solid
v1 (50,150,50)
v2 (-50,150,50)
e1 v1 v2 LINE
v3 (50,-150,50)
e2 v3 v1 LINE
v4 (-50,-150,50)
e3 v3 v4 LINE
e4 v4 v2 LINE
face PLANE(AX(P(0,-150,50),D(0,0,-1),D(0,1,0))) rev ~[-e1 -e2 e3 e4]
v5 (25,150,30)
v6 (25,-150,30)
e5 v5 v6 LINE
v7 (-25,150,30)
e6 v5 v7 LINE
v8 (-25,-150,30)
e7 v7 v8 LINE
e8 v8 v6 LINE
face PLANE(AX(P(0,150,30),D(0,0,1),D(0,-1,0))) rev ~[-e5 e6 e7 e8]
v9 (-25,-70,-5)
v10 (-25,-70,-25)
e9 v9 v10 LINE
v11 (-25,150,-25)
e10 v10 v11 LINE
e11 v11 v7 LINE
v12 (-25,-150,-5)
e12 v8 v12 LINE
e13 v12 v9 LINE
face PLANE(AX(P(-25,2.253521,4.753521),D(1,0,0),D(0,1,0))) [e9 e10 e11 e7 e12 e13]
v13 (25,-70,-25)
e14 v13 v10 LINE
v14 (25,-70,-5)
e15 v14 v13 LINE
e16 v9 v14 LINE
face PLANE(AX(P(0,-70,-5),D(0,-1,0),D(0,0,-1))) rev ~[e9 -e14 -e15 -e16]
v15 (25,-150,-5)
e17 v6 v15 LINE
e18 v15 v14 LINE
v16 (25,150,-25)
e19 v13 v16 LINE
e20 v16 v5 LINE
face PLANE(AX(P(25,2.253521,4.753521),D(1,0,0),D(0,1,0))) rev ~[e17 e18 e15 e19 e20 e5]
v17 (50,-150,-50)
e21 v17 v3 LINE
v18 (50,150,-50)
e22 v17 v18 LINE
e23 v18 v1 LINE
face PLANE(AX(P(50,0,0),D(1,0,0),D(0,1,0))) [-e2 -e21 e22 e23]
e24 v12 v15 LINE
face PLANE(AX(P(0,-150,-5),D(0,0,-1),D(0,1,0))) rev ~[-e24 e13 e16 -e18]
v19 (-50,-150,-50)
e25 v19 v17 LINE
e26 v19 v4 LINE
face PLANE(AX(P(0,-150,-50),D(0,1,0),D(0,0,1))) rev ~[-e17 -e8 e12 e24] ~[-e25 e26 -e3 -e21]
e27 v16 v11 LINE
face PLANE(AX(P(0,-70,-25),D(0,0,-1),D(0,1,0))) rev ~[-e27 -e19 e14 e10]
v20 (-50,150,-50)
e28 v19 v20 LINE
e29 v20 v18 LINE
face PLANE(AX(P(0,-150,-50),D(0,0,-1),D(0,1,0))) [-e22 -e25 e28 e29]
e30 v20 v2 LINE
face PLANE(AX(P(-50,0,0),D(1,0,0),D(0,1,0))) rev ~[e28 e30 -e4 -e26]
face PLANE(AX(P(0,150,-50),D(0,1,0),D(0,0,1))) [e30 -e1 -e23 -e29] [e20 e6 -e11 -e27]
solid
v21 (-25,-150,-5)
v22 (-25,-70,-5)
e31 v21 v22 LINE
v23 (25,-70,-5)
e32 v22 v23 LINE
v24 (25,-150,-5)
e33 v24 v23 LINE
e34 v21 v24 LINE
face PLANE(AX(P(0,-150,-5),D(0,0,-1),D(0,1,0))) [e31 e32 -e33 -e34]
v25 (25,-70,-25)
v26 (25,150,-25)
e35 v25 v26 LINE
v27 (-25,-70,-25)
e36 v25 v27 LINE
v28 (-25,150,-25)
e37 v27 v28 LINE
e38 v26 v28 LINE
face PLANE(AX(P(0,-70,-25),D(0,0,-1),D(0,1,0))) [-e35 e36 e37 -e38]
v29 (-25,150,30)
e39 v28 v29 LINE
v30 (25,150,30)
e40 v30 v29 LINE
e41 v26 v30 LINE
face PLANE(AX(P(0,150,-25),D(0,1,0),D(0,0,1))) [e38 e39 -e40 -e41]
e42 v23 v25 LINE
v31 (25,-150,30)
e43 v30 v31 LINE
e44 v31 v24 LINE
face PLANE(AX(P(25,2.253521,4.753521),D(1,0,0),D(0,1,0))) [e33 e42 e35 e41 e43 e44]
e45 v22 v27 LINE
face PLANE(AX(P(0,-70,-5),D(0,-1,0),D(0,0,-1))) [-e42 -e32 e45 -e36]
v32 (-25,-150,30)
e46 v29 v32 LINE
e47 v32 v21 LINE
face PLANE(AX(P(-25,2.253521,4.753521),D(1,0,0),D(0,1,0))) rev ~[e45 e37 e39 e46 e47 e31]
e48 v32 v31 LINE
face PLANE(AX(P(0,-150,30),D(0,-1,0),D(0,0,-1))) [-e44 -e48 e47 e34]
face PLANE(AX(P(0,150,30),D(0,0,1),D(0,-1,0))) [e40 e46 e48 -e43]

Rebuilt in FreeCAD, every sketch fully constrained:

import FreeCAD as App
import Part
import Sketcher

V = App.Vector

doc = App.newDocument("Part")
params = doc.addObject("Spreadsheet::Sheet", "Params")
for row, (alias, value) in enumerate([
    ("sketch1_width", "300 mm"),
    ("sketch1_height", "100 mm"),
    ("pad1_length", "100 mm"),
    ("sketch2_width", "300 mm"),
    ("sketch2_width2", "80 mm"),
    ("sketch2_height", "35 mm"),
    ("sketch2_height2", "20 mm"),
    ("pad2_length", "50 mm"),
], start=1):
    params.set(f"A{row}", alias)
    params.set(f"B{row}", "=" + value)
    params.setAlias(f"B{row}", alias)

body = doc.addObject("PartDesign::Body", "Body")

sketch1 = body.newObject("Sketcher::SketchObject", "Sketch")
sketch1.AttachmentSupport = (doc.getObject("YZ_Plane"), [""])
sketch1.MapMode = "FlatFace"
sketch1.addGeometry([
    Part.LineSegment(V(-150, 50, 0), V(-150, -50, 0)),
    Part.LineSegment(V(-150, -50, 0), V(150, -50, 0)),
    Part.LineSegment(V(150, -50, 0), V(150, 50, 0)),
    Part.LineSegment(V(150, 50, 0), V(-150, 50, 0)),
], False)
sketch1.addConstraint([
    Sketcher.Constraint("Coincident", 0, 2, 1, 1),
    Sketcher.Constraint("Coincident", 1, 2, 2, 1),
    Sketcher.Constraint("Coincident", 2, 2, 3, 1),
    Sketcher.Constraint("Coincident", 3, 2, 0, 1),
    Sketcher.Constraint("Vertical", 0),
    Sketcher.Constraint("Horizontal", 1),
    Sketcher.Constraint("Vertical", 2),
    Sketcher.Constraint("Horizontal", 3),
    Sketcher.Constraint("Symmetric", 0, 2, 2, 2, -1, 1),
    Sketcher.Constraint("DistanceX", 1, 1, 1, 2, 300.0),
    Sketcher.Constraint("DistanceY", 0, 2, 0, 1, 100.0),
])
sketch1.setExpression("Constraints[9]", "Params.sketch1_width")
sketch1.setExpression("Constraints[10]", "Params.sketch1_height")
pad1 = body.newObject("PartDesign::Pad", "Pad")
pad1.Profile = sketch1
pad1.setExpression("Length", "Params.pad1_length")
pad1.Midplane = True
body2 = doc.addObject("PartDesign::Body", "Body001")

sketch2 = body2.newObject("Sketcher::SketchObject", "Sketch001")
sketch2.AttachmentSupport = (doc.getObject("YZ_Plane001"), [""])
sketch2.MapMode = "FlatFace"
sketch2.addGeometry([
    Part.LineSegment(V(150, 30, 0), V(-150, 30, 0)),
    Part.LineSegment(V(-150, 30, 0), V(-150, -5, 0)),
    Part.LineSegment(V(-150, -5, 0), V(-70, -5, 0)),
    Part.LineSegment(V(-70, -5, 0), V(-70, -25, 0)),
    Part.LineSegment(V(-70, -25, 0), V(150, -25, 0)),
    Part.LineSegment(V(150, -25, 0), V(150, 30, 0)),
], False)
sketch2.addConstraint([
    Sketcher.Constraint("Coincident", 0, 2, 1, 1),
    Sketcher.Constraint("Coincident", 1, 2, 2, 1),
    Sketcher.Constraint("Coincident", 2, 2, 3, 1),
    Sketcher.Constraint("Coincident", 3, 2, 4, 1),
    Sketcher.Constraint("Coincident", 4, 2, 5, 1),
    Sketcher.Constraint("Coincident", 5, 2, 0, 1),
    Sketcher.Constraint("Horizontal", 0),
    Sketcher.Constraint("Vertical", 1),
    Sketcher.Constraint("Horizontal", 2),
    Sketcher.Constraint("Vertical", 3),
    Sketcher.Constraint("Horizontal", 4),
    Sketcher.Constraint("Vertical", 5),
    Sketcher.Constraint("DistanceX", 0, 2, 0, 1, 300.0),
    Sketcher.Constraint("DistanceX", 2, 1, 2, 2, 80.0),
    Sketcher.Constraint("DistanceY", 1, 2, 1, 1, 35.0),
    Sketcher.Constraint("DistanceY", 3, 2, 3, 1, 20.0),
    Sketcher.Constraint("DistanceX", 0, 2, -1, 1, 150.0),
    Sketcher.Constraint("DistanceY", -1, 1, 0, 2, 30.0),
])
sketch2.setExpression("Constraints[12]", "Params.sketch2_width")
sketch2.setExpression("Constraints[13]", "Params.sketch2_width2")
sketch2.setExpression("Constraints[14]", "Params.sketch2_height")
sketch2.setExpression("Constraints[15]", "Params.sketch2_height2")
pad2 = body2.newObject("PartDesign::Pad", "Pad001")
pad2.Profile = sketch2
pad2.setExpression("Length", "Params.pad2_length")
pad2.Midplane = True
doc.recompute()

body3 = doc.addObject("PartDesign::Body", "Body002")
body3.BaseFeature = body2
boolean = body.newObject("PartDesign::Boolean", "Boolean")
boolean.Type = "Cut"
boolean.addObjects([body3])
doc.recompute()

doc.recompute()
